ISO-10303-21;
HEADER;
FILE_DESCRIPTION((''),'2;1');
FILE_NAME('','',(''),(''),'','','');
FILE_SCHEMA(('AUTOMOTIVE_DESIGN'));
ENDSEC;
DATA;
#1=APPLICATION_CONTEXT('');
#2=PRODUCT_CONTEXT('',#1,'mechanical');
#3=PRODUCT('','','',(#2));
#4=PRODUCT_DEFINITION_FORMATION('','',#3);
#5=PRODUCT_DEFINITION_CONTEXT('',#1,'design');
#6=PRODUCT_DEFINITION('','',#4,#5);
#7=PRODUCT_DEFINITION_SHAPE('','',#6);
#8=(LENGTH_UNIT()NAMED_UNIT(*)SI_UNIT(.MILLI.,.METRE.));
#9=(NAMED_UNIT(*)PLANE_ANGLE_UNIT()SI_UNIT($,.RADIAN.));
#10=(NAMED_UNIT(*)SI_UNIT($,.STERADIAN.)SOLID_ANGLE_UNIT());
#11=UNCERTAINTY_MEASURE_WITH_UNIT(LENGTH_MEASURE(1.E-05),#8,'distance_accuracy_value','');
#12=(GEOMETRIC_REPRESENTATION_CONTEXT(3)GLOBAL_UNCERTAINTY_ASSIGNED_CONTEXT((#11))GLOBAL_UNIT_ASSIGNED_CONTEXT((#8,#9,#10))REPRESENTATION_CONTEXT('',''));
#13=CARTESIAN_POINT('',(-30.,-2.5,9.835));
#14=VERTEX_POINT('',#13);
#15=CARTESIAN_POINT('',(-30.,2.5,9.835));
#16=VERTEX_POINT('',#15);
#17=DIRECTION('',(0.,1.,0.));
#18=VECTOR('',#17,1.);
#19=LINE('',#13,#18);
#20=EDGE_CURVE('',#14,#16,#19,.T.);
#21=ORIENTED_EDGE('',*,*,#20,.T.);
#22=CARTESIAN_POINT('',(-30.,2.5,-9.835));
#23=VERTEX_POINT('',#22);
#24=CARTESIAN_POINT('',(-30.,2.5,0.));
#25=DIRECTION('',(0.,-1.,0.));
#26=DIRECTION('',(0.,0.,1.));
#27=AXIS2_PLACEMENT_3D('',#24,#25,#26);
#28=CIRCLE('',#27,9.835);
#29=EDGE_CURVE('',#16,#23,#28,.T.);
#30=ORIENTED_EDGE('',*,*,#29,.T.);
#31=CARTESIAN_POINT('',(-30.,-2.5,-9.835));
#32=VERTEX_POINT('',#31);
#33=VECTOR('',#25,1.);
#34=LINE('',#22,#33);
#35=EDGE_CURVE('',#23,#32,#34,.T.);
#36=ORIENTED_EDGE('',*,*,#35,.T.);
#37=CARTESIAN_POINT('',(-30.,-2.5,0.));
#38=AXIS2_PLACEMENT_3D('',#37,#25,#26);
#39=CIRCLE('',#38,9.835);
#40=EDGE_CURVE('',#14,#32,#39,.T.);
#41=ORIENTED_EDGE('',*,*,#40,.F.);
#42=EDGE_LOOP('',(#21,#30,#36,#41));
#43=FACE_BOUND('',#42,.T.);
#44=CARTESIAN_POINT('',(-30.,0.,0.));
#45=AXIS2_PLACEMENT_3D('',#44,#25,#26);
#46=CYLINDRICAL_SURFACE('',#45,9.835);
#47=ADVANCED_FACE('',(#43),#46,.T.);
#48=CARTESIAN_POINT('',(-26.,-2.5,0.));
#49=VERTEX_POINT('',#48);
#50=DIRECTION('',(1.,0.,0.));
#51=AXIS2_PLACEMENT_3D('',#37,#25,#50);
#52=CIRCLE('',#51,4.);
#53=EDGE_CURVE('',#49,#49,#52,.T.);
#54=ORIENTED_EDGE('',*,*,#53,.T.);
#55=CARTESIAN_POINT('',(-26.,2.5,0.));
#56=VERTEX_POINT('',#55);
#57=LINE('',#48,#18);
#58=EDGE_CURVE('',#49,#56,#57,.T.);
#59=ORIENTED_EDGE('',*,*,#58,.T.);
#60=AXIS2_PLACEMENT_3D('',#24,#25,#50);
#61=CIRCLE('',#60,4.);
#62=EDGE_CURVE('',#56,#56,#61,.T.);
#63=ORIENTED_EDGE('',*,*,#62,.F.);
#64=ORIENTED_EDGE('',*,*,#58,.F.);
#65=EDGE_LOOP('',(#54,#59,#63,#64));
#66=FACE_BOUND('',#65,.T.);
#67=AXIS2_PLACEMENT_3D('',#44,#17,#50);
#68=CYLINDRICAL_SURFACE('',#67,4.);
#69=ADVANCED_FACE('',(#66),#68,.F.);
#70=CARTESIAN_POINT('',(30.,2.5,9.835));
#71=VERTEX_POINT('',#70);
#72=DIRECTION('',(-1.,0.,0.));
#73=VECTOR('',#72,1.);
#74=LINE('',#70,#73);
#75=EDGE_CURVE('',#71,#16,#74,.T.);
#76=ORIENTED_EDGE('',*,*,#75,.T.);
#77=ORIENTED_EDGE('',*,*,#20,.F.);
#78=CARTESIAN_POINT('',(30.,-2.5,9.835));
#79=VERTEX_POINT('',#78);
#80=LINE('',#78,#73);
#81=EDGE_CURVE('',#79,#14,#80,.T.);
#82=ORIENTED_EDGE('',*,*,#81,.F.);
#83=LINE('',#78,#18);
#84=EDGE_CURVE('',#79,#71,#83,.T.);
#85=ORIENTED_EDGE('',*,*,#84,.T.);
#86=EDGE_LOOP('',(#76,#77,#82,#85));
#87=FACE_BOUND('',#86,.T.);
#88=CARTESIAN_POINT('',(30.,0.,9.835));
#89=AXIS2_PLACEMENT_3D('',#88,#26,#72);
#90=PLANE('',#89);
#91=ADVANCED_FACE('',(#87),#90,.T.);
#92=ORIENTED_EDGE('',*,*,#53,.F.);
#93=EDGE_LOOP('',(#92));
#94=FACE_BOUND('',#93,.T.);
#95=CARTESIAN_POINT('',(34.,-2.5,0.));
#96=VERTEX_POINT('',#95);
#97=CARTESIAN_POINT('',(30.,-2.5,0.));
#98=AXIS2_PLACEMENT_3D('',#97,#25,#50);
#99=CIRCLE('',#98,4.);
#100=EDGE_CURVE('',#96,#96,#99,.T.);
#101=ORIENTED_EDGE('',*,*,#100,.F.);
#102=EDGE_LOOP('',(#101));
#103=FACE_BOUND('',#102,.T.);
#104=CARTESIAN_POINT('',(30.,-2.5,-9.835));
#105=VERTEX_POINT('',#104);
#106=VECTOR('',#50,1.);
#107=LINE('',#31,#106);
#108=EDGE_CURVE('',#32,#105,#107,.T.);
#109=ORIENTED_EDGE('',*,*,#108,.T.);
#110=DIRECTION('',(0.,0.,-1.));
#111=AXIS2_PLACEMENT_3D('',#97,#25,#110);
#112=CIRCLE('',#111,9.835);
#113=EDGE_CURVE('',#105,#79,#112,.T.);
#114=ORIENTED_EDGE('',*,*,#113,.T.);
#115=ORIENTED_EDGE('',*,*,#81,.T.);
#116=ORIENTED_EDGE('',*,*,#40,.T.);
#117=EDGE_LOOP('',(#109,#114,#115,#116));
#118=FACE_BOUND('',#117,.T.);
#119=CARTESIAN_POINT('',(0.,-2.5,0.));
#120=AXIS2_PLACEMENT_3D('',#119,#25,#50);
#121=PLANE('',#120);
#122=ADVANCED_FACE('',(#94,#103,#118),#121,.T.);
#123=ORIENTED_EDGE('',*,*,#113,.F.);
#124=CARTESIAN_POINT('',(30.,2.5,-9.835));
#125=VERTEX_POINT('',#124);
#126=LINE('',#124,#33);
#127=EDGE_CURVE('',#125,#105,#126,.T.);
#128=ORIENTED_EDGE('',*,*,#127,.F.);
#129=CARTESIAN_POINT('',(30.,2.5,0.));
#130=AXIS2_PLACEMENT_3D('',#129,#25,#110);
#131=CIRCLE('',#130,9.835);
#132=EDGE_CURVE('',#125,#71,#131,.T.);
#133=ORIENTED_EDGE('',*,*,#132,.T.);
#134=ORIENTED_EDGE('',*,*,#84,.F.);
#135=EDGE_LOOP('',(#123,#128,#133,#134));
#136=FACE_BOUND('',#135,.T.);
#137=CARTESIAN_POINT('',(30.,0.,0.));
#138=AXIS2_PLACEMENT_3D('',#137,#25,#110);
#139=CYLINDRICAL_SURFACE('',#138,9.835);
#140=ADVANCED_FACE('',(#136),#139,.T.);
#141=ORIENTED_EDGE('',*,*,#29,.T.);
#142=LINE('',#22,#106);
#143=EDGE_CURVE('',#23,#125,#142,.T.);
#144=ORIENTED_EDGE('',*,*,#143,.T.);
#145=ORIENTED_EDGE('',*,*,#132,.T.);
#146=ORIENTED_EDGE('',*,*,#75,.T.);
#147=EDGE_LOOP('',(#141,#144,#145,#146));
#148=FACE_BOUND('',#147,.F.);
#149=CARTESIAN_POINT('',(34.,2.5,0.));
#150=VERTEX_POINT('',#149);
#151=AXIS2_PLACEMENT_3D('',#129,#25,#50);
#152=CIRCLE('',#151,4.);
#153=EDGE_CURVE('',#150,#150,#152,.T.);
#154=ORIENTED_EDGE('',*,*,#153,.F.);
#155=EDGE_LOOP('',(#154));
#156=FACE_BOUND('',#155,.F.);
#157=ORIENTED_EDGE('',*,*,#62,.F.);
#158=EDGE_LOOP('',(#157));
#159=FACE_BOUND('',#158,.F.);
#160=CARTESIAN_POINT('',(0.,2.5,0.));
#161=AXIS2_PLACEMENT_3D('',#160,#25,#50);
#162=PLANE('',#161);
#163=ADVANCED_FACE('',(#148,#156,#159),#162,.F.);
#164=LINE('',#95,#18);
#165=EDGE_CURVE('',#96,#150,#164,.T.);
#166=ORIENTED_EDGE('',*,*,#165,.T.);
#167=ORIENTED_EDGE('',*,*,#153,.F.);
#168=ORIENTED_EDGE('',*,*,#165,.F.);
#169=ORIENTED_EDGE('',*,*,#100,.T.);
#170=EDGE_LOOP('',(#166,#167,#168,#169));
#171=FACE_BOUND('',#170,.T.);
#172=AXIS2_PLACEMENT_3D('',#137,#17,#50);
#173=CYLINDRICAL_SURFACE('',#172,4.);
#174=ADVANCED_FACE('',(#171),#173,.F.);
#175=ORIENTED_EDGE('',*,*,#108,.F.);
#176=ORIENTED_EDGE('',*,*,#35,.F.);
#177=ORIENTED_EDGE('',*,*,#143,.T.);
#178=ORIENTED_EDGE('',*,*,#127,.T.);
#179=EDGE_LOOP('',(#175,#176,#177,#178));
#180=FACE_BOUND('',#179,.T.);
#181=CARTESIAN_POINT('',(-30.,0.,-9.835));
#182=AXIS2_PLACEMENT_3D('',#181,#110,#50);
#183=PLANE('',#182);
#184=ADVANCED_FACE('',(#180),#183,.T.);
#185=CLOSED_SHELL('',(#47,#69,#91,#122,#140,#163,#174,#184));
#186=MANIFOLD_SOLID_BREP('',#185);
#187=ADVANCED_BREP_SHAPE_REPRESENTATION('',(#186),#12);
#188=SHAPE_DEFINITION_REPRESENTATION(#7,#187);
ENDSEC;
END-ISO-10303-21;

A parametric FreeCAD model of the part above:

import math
import FreeCAD as App
import Part
import Sketcher
Q = App.Units.Quantity

doc = App.newDocument("Part")
body = doc.addObject("PartDesign::Body", "Body")

# Sketch on XZ plane
sketch1 = body.newObject("Sketcher::SketchObject", "Sketch")
sketch1.AttachmentSupport = (doc.getObject("XZ_Plane"), [""])
sketch1.MapMode = "FlatFace"
sketch1.addGeometry(Part.ArcOfCircle(Part.Circle(App.Vector(-30, 0, 0), App.Vector(0, 0, 1), 9.8), math.radians(90), math.radians(270)), False)
sketch1.addGeometry(Part.LineSegment(App.Vector(-30, -9.8, 0), App.Vector(30, -9.8, 0)), False)
sketch1.addGeometry(Part.ArcOfCircle(Part.Circle(App.Vector(30, 0, 0), App.Vector(0, 0, 1), 9.8), math.radians(-90), math.radians(90)), False)
sketch1.addGeometry(Part.LineSegment(App.Vector(30, 9.8, 0), App.Vector(-30, 9.8, 0)), False)
sketch1.addGeometry(Part.Circle(App.Vector(-30, 0, 0), App.Vector(0, 0, 1), 4), False)
sketch1.addGeometry(Part.Circle(App.Vector(30, 0, 0), App.Vector(0, 0, 1), 4), False)
sketch1.addConstraint(Sketcher.Constraint("Tangent", 0, 2, 1, 1))
sketch1.addConstraint(Sketcher.Constraint("Tangent", 1, 2, 2, 1))
sketch1.addConstraint(Sketcher.Constraint("Tangent", 2, 2, 3, 1))
sketch1.addConstraint(Sketcher.Constraint("Tangent", 3, 2, 0, 1))
sketch1.addConstraint(Sketcher.Constraint("Horizontal", 1))
sketch1.addConstraint(Sketcher.Constraint("Horizontal", 3))
sketch1.addConstraint(Sketcher.Constraint("Coincident", 4, 3, 0, 3))
sketch1.addConstraint(Sketcher.Constraint("Coincident", 5, 3, 2, 3))
sketch1.addConstraint(Sketcher.Constraint("Equal", 4, 5))
sketch1.addConstraint(Sketcher.Constraint("Symmetric", 0, 3, 2, 3, -1, 1))
sketch1.addConstraint(Sketcher.Constraint("Diameter", 4, Q("8 mm")))
sketch1.addConstraint(Sketcher.Constraint("DistanceX", 1, 1, 1, 2, Q("60 mm")))
sketch1.addConstraint(Sketcher.Constraint("Radius", 0, Q("9.835 mm")))
pad1 = body.newObject("PartDesign::Pad", "Pad")
pad1.Profile = sketch1
pad1.Length = 5
pad1.Midplane = True

doc.recompute()
